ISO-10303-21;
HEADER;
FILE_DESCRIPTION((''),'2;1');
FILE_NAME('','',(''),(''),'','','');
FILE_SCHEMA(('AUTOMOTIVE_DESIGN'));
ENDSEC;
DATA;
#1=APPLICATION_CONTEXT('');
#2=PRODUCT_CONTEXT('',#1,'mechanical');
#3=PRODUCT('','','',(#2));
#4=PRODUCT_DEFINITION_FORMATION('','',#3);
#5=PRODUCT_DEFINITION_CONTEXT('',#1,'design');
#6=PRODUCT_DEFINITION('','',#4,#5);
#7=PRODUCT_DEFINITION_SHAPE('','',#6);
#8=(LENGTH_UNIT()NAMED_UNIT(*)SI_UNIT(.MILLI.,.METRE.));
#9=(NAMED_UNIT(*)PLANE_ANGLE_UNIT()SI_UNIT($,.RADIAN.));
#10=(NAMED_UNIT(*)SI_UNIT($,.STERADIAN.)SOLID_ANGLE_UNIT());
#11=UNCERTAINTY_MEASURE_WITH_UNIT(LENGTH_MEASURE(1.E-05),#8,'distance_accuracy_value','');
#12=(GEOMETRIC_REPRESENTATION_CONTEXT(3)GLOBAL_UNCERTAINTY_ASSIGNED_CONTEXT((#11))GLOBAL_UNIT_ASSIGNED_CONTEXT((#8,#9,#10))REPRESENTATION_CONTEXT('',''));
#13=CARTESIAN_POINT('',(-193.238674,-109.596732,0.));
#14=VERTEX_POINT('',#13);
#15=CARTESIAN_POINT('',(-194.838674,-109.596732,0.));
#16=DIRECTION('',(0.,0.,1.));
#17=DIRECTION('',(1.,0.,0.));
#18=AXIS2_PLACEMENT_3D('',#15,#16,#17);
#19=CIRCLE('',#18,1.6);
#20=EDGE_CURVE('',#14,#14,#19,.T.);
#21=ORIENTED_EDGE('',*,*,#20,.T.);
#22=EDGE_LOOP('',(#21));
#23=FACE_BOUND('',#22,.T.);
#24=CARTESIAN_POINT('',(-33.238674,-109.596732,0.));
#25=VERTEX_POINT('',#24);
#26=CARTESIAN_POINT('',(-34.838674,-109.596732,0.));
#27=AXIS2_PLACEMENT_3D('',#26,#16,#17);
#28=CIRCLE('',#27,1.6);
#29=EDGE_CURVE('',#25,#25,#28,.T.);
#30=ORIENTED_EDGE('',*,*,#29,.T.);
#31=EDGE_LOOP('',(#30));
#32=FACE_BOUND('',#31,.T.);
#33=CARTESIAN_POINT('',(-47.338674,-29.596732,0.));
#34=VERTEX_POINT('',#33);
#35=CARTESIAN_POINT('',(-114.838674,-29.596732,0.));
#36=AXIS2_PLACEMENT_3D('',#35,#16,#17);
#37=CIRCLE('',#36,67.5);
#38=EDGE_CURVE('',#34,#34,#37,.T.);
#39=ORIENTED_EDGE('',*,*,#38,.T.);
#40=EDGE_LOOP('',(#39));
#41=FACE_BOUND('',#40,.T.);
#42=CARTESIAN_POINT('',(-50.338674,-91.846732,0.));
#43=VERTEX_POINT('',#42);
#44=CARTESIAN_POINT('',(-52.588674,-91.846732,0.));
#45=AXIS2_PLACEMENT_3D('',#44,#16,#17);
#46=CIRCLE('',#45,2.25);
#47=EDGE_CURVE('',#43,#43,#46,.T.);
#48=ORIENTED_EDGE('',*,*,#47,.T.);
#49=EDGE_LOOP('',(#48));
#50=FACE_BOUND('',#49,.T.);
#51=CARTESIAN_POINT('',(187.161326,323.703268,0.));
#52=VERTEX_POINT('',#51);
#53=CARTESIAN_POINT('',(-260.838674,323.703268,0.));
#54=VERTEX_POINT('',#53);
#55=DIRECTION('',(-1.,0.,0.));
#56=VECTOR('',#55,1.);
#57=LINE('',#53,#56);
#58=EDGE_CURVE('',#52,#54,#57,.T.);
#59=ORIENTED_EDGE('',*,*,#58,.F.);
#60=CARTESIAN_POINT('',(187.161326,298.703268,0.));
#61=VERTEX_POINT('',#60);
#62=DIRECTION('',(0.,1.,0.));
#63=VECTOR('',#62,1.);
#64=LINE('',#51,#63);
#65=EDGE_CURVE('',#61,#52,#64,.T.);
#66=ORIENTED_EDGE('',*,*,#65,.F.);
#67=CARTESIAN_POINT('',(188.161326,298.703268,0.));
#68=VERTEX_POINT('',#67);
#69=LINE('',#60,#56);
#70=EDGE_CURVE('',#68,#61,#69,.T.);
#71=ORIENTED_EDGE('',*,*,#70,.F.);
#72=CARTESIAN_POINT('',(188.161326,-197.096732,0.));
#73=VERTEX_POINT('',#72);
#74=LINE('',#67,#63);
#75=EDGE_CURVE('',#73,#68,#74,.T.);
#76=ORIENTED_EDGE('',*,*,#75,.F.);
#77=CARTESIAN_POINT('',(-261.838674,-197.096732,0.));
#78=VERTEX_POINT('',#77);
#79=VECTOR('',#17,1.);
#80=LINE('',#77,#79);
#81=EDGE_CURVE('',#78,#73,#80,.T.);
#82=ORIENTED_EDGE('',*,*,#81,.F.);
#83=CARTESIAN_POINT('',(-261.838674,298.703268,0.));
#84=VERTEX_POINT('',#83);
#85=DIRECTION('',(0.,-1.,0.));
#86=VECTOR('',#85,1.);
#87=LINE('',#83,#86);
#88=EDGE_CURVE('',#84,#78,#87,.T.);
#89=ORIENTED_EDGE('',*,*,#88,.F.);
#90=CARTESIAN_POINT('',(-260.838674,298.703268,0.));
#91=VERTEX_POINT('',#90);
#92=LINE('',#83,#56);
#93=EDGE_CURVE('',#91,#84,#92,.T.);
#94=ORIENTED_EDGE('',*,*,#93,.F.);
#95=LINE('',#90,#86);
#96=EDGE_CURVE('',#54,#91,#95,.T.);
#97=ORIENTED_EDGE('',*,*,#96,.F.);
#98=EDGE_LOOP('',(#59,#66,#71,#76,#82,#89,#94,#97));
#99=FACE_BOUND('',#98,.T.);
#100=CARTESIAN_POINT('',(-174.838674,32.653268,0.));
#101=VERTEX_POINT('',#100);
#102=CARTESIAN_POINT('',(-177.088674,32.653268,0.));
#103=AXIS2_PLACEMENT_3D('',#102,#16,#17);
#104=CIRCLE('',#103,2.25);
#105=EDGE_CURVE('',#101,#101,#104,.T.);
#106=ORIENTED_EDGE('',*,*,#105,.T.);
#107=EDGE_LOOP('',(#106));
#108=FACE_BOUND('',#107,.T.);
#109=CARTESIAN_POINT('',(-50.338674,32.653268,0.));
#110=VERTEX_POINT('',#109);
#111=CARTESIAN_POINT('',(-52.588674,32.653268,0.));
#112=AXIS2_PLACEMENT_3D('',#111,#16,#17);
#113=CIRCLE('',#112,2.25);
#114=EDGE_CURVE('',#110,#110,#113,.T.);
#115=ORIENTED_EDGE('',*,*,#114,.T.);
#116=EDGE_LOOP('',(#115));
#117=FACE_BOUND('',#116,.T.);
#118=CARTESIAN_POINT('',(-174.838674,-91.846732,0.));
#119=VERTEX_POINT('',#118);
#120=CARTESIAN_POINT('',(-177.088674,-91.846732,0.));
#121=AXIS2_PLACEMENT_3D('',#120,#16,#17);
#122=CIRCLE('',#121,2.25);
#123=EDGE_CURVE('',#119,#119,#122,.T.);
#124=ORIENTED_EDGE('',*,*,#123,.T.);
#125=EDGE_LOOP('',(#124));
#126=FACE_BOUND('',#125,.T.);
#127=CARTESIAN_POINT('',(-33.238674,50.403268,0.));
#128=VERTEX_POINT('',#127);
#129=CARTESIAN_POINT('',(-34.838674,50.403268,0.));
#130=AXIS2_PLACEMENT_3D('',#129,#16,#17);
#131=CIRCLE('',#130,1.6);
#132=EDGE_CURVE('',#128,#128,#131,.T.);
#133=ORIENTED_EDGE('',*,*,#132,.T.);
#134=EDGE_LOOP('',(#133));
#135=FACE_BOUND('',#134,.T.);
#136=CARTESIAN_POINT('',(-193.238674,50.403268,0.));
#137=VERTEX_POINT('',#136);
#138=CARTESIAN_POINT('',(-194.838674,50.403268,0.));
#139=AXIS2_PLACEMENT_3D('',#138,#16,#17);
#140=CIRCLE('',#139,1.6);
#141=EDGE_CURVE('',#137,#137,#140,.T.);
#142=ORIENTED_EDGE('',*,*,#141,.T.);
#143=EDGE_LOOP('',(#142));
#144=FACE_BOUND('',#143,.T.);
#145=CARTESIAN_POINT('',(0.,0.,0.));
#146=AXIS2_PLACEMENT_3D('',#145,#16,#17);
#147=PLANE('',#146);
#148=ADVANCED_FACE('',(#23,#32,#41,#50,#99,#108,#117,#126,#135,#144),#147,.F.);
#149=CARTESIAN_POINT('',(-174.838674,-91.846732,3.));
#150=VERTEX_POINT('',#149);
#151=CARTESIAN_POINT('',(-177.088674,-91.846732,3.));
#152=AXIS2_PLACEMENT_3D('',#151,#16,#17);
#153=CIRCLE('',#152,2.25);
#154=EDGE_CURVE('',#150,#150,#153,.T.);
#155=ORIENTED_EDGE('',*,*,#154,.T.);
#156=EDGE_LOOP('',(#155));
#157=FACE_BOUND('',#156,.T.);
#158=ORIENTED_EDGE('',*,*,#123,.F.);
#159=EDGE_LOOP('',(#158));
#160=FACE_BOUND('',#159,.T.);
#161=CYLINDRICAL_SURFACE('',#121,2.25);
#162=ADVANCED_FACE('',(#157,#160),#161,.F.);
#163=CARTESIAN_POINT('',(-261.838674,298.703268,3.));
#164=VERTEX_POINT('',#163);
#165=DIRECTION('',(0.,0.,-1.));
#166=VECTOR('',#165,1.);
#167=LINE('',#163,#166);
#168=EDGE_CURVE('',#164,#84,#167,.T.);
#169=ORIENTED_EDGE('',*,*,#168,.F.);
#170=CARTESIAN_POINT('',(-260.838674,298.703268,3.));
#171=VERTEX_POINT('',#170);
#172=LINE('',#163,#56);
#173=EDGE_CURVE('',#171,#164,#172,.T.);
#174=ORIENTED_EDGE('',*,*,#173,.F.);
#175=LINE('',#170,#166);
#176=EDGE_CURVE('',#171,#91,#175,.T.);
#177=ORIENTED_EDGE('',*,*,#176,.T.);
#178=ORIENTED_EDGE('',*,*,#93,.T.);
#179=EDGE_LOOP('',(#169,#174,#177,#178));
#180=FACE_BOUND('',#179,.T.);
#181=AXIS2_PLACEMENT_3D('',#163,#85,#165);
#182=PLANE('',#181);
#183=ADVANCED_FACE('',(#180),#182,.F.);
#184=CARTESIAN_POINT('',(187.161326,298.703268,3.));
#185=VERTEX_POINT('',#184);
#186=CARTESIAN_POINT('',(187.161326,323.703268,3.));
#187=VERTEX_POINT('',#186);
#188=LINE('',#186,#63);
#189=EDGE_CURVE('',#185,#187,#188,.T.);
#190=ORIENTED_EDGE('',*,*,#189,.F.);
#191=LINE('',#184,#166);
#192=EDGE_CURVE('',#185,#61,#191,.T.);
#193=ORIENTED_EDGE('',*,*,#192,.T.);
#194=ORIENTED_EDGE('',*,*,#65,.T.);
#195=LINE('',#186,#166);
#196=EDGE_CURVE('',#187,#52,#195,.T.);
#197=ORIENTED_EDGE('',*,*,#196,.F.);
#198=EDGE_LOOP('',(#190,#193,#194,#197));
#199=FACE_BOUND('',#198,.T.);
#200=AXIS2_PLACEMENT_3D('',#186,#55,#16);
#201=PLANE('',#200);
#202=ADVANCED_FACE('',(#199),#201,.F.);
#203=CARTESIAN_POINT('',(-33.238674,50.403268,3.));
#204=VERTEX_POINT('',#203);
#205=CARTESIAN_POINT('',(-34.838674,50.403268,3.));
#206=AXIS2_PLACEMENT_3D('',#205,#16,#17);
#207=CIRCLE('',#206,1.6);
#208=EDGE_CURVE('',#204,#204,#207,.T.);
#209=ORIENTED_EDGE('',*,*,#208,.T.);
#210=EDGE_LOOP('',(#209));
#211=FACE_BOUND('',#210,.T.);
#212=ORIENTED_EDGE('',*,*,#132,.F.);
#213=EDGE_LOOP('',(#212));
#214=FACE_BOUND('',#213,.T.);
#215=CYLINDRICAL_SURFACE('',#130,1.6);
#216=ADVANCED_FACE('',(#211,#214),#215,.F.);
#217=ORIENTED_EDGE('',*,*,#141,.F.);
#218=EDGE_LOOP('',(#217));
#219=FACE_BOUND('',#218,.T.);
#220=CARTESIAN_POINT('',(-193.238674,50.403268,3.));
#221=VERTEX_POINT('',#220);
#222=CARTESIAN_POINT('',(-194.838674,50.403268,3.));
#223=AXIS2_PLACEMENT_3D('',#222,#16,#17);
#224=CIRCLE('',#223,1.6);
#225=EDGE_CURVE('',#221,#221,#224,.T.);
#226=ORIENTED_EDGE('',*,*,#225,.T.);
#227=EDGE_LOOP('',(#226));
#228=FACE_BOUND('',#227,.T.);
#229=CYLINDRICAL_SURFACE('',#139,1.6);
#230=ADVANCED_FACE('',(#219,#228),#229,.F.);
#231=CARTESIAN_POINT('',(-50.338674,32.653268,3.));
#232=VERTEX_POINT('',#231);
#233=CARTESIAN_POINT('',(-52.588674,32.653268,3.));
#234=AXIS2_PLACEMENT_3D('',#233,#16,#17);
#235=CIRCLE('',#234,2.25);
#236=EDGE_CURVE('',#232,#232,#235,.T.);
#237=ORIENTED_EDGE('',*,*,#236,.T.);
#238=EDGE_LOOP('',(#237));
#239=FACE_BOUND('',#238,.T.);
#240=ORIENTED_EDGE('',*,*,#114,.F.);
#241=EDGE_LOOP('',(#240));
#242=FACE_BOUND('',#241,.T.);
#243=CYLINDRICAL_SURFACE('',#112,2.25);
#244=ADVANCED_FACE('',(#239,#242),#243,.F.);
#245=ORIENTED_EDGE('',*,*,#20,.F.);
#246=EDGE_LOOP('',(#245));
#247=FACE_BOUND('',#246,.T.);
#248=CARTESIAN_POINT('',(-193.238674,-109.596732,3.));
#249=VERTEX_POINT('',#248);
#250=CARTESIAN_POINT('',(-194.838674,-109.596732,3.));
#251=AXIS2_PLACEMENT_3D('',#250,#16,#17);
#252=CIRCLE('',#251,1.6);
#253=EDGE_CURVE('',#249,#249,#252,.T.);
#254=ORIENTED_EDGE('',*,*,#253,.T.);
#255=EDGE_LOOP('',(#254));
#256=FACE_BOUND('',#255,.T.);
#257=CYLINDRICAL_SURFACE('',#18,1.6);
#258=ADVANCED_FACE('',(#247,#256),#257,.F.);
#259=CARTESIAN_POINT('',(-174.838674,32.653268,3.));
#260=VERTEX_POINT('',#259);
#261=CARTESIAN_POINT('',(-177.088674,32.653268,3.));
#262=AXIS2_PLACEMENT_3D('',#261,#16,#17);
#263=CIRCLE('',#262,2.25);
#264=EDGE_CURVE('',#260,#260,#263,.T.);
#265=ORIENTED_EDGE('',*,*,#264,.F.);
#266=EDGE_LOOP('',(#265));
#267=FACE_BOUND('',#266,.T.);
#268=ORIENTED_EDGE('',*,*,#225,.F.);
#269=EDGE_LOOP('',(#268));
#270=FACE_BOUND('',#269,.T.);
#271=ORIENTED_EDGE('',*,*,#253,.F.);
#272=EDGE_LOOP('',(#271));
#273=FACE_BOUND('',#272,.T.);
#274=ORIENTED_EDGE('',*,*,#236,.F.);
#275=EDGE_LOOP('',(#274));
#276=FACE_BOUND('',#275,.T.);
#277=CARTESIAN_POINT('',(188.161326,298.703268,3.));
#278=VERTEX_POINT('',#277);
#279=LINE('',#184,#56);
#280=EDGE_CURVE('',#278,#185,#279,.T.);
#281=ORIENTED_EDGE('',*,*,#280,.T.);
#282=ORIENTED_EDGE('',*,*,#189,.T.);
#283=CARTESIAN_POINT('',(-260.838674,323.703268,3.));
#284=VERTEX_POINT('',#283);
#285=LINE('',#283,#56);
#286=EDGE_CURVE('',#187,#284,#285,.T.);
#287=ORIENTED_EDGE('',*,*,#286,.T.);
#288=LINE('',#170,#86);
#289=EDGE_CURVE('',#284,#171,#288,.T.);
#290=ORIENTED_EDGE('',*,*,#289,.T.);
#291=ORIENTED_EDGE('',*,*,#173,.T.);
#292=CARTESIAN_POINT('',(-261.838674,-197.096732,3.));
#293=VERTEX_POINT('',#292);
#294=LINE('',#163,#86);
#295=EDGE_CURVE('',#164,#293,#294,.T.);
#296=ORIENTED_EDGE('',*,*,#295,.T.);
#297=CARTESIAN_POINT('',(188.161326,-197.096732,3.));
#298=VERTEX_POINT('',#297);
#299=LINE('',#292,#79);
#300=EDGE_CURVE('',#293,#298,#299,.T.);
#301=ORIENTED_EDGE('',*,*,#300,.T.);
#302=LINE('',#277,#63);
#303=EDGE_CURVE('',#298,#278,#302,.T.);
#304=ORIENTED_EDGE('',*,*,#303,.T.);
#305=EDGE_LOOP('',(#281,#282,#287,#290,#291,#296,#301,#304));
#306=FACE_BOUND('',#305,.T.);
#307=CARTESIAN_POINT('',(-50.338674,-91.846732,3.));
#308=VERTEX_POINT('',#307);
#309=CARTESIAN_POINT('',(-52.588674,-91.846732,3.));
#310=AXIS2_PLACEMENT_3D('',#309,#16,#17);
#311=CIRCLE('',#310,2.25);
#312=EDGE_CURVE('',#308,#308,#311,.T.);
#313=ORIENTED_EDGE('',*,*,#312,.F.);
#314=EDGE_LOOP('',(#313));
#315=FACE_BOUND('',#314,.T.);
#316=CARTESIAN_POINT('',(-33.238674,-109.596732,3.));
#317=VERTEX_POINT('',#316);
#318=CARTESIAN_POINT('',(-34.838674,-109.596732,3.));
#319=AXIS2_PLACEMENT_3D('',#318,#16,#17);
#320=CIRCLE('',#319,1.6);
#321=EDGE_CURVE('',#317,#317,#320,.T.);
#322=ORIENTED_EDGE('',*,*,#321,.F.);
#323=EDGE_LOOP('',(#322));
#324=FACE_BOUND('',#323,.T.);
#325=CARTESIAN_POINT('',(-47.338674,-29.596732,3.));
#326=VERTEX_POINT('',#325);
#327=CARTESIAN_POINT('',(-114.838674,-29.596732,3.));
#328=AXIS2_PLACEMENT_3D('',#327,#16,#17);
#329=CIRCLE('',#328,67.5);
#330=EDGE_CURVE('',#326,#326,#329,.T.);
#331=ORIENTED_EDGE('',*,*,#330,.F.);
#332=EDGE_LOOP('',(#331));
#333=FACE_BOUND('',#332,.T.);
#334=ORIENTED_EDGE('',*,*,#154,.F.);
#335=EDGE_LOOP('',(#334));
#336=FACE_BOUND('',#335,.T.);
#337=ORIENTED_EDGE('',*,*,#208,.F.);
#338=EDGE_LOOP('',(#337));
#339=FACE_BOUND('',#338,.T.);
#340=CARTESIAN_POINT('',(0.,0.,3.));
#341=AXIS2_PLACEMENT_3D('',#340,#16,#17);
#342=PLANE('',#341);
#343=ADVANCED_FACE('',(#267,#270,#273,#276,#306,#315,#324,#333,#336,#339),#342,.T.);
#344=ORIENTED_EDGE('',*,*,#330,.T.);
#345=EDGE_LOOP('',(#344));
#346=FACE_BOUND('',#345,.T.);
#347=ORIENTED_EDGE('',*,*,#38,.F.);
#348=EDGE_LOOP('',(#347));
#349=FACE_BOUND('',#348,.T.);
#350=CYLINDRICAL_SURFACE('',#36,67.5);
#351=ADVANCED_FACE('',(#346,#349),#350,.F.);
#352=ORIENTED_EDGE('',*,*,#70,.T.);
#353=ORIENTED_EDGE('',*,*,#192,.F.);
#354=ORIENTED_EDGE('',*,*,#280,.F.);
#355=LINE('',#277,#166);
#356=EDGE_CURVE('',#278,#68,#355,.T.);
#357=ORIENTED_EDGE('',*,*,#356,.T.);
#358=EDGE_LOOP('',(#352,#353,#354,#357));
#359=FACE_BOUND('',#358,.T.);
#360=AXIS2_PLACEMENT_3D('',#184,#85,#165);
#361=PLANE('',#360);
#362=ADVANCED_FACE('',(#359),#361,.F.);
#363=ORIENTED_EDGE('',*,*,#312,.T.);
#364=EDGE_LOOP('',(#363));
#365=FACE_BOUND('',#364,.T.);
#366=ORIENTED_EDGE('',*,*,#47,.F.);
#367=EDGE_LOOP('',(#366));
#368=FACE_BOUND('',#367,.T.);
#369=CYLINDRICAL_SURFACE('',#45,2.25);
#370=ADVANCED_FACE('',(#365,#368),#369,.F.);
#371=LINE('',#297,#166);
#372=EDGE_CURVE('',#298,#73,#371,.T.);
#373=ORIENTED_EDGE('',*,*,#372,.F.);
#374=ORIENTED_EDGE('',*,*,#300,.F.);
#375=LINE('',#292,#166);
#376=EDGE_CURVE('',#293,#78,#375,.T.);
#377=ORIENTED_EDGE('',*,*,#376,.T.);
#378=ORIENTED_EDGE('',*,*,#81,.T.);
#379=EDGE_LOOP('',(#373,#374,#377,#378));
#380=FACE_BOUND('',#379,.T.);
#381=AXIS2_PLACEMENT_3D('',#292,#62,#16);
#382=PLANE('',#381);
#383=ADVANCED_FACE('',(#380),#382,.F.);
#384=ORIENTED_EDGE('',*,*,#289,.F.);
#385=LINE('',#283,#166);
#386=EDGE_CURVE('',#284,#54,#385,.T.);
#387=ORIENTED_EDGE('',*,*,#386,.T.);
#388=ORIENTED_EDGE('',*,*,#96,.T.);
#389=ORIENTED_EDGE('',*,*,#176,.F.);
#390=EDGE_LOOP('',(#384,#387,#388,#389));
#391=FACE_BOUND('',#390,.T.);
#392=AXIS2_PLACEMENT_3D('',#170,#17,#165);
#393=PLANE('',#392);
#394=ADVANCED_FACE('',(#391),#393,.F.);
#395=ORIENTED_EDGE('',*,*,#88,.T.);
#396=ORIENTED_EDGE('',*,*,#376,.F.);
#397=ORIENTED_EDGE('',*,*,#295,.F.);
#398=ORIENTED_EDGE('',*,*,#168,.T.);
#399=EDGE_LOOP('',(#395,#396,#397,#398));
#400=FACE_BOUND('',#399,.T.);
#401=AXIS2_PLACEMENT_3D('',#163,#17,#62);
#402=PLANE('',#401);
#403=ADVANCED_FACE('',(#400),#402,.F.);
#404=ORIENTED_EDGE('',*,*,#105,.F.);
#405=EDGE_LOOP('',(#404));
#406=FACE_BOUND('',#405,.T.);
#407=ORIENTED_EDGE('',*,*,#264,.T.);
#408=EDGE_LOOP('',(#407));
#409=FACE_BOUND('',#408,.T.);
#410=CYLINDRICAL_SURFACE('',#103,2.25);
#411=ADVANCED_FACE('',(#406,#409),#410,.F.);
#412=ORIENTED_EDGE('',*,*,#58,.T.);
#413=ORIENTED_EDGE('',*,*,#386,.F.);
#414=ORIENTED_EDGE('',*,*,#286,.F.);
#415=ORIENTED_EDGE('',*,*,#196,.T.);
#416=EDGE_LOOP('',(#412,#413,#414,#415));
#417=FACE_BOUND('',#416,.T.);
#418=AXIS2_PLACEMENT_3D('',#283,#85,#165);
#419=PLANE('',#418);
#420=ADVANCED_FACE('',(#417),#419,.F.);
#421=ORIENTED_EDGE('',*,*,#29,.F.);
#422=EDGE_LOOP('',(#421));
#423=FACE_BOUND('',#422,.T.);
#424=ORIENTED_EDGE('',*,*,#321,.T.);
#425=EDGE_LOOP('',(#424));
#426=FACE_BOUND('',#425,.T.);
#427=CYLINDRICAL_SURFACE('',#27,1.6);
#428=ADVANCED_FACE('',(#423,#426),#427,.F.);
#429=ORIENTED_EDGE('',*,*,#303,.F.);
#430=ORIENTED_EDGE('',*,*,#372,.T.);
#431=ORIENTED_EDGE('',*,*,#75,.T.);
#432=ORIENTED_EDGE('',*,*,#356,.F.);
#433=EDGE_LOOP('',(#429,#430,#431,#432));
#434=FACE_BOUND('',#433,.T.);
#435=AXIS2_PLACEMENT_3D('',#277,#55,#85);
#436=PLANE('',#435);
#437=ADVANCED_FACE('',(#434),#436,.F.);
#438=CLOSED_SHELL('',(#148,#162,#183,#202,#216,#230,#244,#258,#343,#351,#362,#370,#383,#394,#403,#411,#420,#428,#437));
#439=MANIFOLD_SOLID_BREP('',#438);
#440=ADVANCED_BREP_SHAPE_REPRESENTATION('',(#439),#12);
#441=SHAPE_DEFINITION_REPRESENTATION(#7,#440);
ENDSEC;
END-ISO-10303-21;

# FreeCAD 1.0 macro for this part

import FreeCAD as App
import Part
import Sketcher
from FreeCAD import Vector


def add_polygon(sketch, points):
    """Adds a closed chain of lines whose ends are joined by coincident constraints."""
    first, n = sketch.GeometryCount, len(points)
    for a, b in zip(points, points[1:] + points[:1]):
        sketch.addGeometry(Part.LineSegment(App.Vector(*a, 0), App.Vector(*b, 0)), False)
    for i in range(n):
        sketch.addConstraint(Sketcher.Constraint("Coincident", first + i, 2, first + (i + 1) % n, 1))

doc = App.newDocument("Part")
body = doc.addObject("PartDesign::Body", "Body")

# Sketch on XY plane
sketch1 = body.newObject("Sketcher::SketchObject", "Sketch")
sketch1.AttachmentSupport = (doc.getObject("XY_Plane"), [""])
sketch1.MapMode = "FlatFace"
add_polygon(sketch1, [(-260.8, 298.7), (-261.8, 298.7), (-261.8, -197.1), (188.2, -197.1), (188.2, 298.7), (187.2, 298.7), (187.2, 323.7), (-260.8, 323.7)])  # lines 0-7
sketch1.addConstraint([
    Sketcher.Constraint("Horizontal", 0),
    Sketcher.Constraint("Vertical", 1),
    Sketcher.Constraint("Horizontal", 2),
    Sketcher.Constraint("Vertical", 3),
    Sketcher.Constraint("Horizontal", 4),
    Sketcher.Constraint("Vertical", 5),
    Sketcher.Constraint("Horizontal", 6),
    Sketcher.Constraint("Vertical", 7),
    Sketcher.Constraint("Horizontal", 0, 2, 3, 2),
    Sketcher.Constraint("Equal", 0, 4),
    Sketcher.Constraint("DistanceX", 0, 2, 0, 1, 1.0),
    Sketcher.Constraint("DistanceX", 2, 1, 2, 2, 450.0),
    Sketcher.Constraint("DistanceY", 5, 1, 5, 2, 25.0),
    Sketcher.Constraint("DistanceY", 1, 2, 1, 1, 495.8),
    Sketcher.Constraint("DistanceX", 0, 2, -1, 1, 261.838674),
    Sketcher.Constraint("DistanceY", -1, 1, 0, 2, 298.703268),
])
pad1 = body.newObject("PartDesign::Pad", "Pad")
pad1.Profile = sketch1
pad1.Length = 3

# Sketch on XY plane
sketch2 = body.newObject("Sketcher::SketchObject", "Sketch001")
sketch2.AttachmentSupport = (doc.getObject("XY_Plane"), [""])
sketch2.MapMode = "FlatFace"
sketch2.AttachmentOffset = App.Placement(Vector(0, 0, 3), App.Rotation())
sketch2.addGeometry([
    Part.Circle(Vector(-114.8, -29.6, 0), Vector(0, 0, 1), 67.5),  # 0
    Part.Circle(Vector(-52.6, 32.7, 0), Vector(0, 0, 1), 2.2),  # 1
    Part.Circle(Vector(-34.8, 50.4, 0), Vector(0, 0, 1), 1.6),  # 2
    Part.Circle(Vector(-52.6, -91.8, 0), Vector(0, 0, 1), 2.2),  # 3
    Part.Circle(Vector(-34.8, -109.6, 0), Vector(0, 0, 1), 1.6),  # 4
    Part.Circle(Vector(-177.1, -91.8, 0), Vector(0, 0, 1), 2.2),  # 5
    Part.Circle(Vector(-194.8, -109.6, 0), Vector(0, 0, 1), 1.6),  # 6
    Part.Circle(Vector(-177.1, 32.7, 0), Vector(0, 0, 1), 2.2),  # 7
    Part.Circle(Vector(-194.8, 50.4, 0), Vector(0, 0, 1), 1.6),  # 8
], False)
sketch2.addConstraint([
    Sketcher.Constraint("Equal", 1, 3),
    Sketcher.Constraint("Equal", 2, 4),
    Sketcher.Constraint("Equal", 3, 5),
    Sketcher.Constraint("Equal", 4, 6),
    Sketcher.Constraint("Equal", 5, 7),
    Sketcher.Constraint("Equal", 6, 8),
    Sketcher.Constraint("Horizontal", 3, 3, 5, 3),
    Sketcher.Constraint("Horizontal", 4, 3, 6, 3),
    Sketcher.Constraint("Horizontal", 1, 3, 7, 3),
    Sketcher.Constraint("Horizontal", 2, 3, 8, 3),
    Sketcher.Constraint("Vertical", 1, 3, 3, 3),
    Sketcher.Constraint("Vertical", 2, 3, 4, 3),
    Sketcher.Constraint("Vertical", 5, 3, 7, 3),
    Sketcher.Constraint("Vertical", 6, 3, 8, 3),
    Sketcher.Constraint("Diameter", 0, 135.0),
    Sketcher.Constraint("Diameter", 1, 4.5),
    Sketcher.Constraint("Diameter", 2, 3.2),
    Sketcher.Constraint("DistanceX", 0, 3, 2, 3, 80.0),
    Sketcher.Constraint("DistanceY", 0, 3, 2, 3, 80.0),
    Sketcher.Constraint("DistanceY", 4, 3, 0, 3, 80.0),
    Sketcher.Constraint("DistanceX", 6, 3, 0, 3, 80.0),
    Sketcher.Constraint("DistanceY", 3, 3, 1, 3, 124.5),
    Sketcher.Constraint("DistanceX", 5, 3, 3, 3, 124.5),
    Sketcher.Constraint("DistanceX", 0, 3, 1, 3, 62.25),
    Sketcher.Constraint("DistanceY", 0, 3, 1, 3, 62.25),
    Sketcher.Constraint("DistanceX", 0, 3, -1, 1, 114.838674),
    Sketcher.Constraint("DistanceY", 0, 3, -1, 1, 29.596732),
])
pocket1 = body.newObject("PartDesign::Pocket", "Pocket")
pocket1.Profile = sketch2
pocket1.Length = 3

doc.recompute()
